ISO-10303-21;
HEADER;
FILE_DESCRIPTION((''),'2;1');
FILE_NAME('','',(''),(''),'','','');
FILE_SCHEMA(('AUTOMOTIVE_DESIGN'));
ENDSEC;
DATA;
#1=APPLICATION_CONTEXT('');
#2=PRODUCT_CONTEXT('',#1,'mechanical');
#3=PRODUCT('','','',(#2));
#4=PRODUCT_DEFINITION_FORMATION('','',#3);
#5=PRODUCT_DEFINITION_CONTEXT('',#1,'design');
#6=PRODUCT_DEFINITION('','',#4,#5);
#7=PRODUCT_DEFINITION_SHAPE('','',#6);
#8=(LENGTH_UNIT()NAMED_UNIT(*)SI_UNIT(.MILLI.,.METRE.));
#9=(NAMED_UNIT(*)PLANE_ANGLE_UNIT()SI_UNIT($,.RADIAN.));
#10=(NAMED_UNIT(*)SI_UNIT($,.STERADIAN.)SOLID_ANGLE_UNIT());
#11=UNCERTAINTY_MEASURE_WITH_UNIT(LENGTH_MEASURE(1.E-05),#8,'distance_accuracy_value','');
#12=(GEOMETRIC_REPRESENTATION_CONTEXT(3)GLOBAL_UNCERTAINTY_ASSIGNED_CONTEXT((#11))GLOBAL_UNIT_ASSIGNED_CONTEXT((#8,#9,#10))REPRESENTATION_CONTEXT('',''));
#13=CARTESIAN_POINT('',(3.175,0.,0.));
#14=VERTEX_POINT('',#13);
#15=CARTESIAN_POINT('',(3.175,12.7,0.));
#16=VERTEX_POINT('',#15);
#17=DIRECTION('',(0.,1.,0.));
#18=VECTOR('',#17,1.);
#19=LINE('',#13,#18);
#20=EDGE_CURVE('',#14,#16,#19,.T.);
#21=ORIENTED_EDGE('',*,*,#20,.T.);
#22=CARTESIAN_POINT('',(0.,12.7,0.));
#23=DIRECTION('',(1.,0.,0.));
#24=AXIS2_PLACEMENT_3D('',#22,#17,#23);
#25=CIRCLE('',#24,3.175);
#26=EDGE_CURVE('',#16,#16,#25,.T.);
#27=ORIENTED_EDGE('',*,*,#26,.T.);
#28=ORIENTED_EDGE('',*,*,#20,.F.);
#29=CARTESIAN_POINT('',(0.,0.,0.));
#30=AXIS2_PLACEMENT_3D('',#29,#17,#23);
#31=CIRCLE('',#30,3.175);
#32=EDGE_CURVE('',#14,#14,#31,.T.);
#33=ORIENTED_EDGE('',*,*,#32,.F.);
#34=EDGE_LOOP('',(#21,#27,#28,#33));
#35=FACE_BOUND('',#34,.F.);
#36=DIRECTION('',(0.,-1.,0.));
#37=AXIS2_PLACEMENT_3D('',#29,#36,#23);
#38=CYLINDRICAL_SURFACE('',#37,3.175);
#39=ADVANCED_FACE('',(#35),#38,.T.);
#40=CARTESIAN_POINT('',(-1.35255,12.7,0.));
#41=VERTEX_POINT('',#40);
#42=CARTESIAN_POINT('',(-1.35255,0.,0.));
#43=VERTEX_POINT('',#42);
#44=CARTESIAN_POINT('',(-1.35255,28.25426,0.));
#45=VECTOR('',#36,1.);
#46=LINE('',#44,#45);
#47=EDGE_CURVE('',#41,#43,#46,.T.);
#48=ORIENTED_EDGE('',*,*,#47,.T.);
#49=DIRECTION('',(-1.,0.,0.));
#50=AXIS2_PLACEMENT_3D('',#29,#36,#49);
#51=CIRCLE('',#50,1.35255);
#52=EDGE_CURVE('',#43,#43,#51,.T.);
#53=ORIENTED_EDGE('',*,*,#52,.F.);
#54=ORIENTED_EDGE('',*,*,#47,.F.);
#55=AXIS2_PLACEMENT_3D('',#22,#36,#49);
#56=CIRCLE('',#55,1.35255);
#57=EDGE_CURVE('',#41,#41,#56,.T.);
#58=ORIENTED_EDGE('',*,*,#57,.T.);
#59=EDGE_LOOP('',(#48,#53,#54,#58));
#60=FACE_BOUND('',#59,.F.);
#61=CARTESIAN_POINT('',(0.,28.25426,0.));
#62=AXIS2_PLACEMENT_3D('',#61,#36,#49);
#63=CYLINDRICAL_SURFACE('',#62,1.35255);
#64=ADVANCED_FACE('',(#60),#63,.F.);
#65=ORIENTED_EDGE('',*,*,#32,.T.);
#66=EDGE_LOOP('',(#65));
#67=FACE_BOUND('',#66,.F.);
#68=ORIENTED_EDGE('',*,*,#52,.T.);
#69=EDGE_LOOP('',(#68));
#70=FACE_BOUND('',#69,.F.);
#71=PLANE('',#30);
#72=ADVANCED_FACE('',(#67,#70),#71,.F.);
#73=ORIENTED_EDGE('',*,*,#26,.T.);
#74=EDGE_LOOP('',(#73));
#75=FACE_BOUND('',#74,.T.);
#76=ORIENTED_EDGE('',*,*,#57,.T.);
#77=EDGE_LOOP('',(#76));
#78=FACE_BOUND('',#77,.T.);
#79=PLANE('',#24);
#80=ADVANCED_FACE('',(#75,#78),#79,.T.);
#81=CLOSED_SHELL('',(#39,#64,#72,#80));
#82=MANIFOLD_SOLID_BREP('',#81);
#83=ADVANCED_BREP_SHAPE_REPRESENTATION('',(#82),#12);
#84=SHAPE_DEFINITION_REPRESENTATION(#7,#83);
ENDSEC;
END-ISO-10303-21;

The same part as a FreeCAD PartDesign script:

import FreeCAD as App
import Part
import Sketcher

V = App.Vector
Q = App.Units.Quantity

doc = App.newDocument("Part")
body = doc.addObject("PartDesign::Body", "Body")

# Sketch on XZ plane
sketch1 = doc.addObject("Sketcher::SketchObject", "Sketch")
body.addObject(sketch1)
sketch1.AttachmentSupport = (doc.XZ_Plane, [""])
sketch1.MapMode = "FlatFace"
sketch1.addGeometry(Part.Circle(V(0, 0, 0), V(0, 0, 1), 3.2), False)
sketch1.addConstraint([
    Sketcher.Constraint("Coincident", 0, 3, -1, 1),
    Sketcher.Constraint("Diameter", 0, Q("0.25 in")),
])
pad1 = doc.addObject("PartDesign::Pad", "Pad")
body.addObject(pad1)
pad1.Profile = sketch1
pad1.Length = Q("0.5 in")
pad1.Reversed = True

# Sketch on XZ plane
sketch2 = doc.addObject("Sketcher::SketchObject", "Sketch001")
body.addObject(sketch2)
sketch2.AttachmentSupport = (doc.XZ_Plane, [""])
sketch2.MapMode = "FlatFace"
sketch2.AttachmentOffset = App.Placement(V(0, 0, -0.5 * 25.4), App.Rotation())
sketch2.addGeometry(Part.Circle(V(0, 0, 0), V(0, 0, 1), 1.4), False)
sketch2.addConstraint([
    Sketcher.Constraint("Coincident", 0, 3, -1, 1),
    Sketcher.Constraint("Diameter", 0, Q("0.1065 in")),
])
doc.recompute()
hole = doc.addObject("PartDesign::Hole", "Hole")
body.addObject(hole)
hole.Profile = sketch2
hole.ThreadType = "None"
hole.Diameter = Q("0.1065 in")
hole.DepthType = "ThroughAll"
hole.Reversed = True

doc.recompute()
